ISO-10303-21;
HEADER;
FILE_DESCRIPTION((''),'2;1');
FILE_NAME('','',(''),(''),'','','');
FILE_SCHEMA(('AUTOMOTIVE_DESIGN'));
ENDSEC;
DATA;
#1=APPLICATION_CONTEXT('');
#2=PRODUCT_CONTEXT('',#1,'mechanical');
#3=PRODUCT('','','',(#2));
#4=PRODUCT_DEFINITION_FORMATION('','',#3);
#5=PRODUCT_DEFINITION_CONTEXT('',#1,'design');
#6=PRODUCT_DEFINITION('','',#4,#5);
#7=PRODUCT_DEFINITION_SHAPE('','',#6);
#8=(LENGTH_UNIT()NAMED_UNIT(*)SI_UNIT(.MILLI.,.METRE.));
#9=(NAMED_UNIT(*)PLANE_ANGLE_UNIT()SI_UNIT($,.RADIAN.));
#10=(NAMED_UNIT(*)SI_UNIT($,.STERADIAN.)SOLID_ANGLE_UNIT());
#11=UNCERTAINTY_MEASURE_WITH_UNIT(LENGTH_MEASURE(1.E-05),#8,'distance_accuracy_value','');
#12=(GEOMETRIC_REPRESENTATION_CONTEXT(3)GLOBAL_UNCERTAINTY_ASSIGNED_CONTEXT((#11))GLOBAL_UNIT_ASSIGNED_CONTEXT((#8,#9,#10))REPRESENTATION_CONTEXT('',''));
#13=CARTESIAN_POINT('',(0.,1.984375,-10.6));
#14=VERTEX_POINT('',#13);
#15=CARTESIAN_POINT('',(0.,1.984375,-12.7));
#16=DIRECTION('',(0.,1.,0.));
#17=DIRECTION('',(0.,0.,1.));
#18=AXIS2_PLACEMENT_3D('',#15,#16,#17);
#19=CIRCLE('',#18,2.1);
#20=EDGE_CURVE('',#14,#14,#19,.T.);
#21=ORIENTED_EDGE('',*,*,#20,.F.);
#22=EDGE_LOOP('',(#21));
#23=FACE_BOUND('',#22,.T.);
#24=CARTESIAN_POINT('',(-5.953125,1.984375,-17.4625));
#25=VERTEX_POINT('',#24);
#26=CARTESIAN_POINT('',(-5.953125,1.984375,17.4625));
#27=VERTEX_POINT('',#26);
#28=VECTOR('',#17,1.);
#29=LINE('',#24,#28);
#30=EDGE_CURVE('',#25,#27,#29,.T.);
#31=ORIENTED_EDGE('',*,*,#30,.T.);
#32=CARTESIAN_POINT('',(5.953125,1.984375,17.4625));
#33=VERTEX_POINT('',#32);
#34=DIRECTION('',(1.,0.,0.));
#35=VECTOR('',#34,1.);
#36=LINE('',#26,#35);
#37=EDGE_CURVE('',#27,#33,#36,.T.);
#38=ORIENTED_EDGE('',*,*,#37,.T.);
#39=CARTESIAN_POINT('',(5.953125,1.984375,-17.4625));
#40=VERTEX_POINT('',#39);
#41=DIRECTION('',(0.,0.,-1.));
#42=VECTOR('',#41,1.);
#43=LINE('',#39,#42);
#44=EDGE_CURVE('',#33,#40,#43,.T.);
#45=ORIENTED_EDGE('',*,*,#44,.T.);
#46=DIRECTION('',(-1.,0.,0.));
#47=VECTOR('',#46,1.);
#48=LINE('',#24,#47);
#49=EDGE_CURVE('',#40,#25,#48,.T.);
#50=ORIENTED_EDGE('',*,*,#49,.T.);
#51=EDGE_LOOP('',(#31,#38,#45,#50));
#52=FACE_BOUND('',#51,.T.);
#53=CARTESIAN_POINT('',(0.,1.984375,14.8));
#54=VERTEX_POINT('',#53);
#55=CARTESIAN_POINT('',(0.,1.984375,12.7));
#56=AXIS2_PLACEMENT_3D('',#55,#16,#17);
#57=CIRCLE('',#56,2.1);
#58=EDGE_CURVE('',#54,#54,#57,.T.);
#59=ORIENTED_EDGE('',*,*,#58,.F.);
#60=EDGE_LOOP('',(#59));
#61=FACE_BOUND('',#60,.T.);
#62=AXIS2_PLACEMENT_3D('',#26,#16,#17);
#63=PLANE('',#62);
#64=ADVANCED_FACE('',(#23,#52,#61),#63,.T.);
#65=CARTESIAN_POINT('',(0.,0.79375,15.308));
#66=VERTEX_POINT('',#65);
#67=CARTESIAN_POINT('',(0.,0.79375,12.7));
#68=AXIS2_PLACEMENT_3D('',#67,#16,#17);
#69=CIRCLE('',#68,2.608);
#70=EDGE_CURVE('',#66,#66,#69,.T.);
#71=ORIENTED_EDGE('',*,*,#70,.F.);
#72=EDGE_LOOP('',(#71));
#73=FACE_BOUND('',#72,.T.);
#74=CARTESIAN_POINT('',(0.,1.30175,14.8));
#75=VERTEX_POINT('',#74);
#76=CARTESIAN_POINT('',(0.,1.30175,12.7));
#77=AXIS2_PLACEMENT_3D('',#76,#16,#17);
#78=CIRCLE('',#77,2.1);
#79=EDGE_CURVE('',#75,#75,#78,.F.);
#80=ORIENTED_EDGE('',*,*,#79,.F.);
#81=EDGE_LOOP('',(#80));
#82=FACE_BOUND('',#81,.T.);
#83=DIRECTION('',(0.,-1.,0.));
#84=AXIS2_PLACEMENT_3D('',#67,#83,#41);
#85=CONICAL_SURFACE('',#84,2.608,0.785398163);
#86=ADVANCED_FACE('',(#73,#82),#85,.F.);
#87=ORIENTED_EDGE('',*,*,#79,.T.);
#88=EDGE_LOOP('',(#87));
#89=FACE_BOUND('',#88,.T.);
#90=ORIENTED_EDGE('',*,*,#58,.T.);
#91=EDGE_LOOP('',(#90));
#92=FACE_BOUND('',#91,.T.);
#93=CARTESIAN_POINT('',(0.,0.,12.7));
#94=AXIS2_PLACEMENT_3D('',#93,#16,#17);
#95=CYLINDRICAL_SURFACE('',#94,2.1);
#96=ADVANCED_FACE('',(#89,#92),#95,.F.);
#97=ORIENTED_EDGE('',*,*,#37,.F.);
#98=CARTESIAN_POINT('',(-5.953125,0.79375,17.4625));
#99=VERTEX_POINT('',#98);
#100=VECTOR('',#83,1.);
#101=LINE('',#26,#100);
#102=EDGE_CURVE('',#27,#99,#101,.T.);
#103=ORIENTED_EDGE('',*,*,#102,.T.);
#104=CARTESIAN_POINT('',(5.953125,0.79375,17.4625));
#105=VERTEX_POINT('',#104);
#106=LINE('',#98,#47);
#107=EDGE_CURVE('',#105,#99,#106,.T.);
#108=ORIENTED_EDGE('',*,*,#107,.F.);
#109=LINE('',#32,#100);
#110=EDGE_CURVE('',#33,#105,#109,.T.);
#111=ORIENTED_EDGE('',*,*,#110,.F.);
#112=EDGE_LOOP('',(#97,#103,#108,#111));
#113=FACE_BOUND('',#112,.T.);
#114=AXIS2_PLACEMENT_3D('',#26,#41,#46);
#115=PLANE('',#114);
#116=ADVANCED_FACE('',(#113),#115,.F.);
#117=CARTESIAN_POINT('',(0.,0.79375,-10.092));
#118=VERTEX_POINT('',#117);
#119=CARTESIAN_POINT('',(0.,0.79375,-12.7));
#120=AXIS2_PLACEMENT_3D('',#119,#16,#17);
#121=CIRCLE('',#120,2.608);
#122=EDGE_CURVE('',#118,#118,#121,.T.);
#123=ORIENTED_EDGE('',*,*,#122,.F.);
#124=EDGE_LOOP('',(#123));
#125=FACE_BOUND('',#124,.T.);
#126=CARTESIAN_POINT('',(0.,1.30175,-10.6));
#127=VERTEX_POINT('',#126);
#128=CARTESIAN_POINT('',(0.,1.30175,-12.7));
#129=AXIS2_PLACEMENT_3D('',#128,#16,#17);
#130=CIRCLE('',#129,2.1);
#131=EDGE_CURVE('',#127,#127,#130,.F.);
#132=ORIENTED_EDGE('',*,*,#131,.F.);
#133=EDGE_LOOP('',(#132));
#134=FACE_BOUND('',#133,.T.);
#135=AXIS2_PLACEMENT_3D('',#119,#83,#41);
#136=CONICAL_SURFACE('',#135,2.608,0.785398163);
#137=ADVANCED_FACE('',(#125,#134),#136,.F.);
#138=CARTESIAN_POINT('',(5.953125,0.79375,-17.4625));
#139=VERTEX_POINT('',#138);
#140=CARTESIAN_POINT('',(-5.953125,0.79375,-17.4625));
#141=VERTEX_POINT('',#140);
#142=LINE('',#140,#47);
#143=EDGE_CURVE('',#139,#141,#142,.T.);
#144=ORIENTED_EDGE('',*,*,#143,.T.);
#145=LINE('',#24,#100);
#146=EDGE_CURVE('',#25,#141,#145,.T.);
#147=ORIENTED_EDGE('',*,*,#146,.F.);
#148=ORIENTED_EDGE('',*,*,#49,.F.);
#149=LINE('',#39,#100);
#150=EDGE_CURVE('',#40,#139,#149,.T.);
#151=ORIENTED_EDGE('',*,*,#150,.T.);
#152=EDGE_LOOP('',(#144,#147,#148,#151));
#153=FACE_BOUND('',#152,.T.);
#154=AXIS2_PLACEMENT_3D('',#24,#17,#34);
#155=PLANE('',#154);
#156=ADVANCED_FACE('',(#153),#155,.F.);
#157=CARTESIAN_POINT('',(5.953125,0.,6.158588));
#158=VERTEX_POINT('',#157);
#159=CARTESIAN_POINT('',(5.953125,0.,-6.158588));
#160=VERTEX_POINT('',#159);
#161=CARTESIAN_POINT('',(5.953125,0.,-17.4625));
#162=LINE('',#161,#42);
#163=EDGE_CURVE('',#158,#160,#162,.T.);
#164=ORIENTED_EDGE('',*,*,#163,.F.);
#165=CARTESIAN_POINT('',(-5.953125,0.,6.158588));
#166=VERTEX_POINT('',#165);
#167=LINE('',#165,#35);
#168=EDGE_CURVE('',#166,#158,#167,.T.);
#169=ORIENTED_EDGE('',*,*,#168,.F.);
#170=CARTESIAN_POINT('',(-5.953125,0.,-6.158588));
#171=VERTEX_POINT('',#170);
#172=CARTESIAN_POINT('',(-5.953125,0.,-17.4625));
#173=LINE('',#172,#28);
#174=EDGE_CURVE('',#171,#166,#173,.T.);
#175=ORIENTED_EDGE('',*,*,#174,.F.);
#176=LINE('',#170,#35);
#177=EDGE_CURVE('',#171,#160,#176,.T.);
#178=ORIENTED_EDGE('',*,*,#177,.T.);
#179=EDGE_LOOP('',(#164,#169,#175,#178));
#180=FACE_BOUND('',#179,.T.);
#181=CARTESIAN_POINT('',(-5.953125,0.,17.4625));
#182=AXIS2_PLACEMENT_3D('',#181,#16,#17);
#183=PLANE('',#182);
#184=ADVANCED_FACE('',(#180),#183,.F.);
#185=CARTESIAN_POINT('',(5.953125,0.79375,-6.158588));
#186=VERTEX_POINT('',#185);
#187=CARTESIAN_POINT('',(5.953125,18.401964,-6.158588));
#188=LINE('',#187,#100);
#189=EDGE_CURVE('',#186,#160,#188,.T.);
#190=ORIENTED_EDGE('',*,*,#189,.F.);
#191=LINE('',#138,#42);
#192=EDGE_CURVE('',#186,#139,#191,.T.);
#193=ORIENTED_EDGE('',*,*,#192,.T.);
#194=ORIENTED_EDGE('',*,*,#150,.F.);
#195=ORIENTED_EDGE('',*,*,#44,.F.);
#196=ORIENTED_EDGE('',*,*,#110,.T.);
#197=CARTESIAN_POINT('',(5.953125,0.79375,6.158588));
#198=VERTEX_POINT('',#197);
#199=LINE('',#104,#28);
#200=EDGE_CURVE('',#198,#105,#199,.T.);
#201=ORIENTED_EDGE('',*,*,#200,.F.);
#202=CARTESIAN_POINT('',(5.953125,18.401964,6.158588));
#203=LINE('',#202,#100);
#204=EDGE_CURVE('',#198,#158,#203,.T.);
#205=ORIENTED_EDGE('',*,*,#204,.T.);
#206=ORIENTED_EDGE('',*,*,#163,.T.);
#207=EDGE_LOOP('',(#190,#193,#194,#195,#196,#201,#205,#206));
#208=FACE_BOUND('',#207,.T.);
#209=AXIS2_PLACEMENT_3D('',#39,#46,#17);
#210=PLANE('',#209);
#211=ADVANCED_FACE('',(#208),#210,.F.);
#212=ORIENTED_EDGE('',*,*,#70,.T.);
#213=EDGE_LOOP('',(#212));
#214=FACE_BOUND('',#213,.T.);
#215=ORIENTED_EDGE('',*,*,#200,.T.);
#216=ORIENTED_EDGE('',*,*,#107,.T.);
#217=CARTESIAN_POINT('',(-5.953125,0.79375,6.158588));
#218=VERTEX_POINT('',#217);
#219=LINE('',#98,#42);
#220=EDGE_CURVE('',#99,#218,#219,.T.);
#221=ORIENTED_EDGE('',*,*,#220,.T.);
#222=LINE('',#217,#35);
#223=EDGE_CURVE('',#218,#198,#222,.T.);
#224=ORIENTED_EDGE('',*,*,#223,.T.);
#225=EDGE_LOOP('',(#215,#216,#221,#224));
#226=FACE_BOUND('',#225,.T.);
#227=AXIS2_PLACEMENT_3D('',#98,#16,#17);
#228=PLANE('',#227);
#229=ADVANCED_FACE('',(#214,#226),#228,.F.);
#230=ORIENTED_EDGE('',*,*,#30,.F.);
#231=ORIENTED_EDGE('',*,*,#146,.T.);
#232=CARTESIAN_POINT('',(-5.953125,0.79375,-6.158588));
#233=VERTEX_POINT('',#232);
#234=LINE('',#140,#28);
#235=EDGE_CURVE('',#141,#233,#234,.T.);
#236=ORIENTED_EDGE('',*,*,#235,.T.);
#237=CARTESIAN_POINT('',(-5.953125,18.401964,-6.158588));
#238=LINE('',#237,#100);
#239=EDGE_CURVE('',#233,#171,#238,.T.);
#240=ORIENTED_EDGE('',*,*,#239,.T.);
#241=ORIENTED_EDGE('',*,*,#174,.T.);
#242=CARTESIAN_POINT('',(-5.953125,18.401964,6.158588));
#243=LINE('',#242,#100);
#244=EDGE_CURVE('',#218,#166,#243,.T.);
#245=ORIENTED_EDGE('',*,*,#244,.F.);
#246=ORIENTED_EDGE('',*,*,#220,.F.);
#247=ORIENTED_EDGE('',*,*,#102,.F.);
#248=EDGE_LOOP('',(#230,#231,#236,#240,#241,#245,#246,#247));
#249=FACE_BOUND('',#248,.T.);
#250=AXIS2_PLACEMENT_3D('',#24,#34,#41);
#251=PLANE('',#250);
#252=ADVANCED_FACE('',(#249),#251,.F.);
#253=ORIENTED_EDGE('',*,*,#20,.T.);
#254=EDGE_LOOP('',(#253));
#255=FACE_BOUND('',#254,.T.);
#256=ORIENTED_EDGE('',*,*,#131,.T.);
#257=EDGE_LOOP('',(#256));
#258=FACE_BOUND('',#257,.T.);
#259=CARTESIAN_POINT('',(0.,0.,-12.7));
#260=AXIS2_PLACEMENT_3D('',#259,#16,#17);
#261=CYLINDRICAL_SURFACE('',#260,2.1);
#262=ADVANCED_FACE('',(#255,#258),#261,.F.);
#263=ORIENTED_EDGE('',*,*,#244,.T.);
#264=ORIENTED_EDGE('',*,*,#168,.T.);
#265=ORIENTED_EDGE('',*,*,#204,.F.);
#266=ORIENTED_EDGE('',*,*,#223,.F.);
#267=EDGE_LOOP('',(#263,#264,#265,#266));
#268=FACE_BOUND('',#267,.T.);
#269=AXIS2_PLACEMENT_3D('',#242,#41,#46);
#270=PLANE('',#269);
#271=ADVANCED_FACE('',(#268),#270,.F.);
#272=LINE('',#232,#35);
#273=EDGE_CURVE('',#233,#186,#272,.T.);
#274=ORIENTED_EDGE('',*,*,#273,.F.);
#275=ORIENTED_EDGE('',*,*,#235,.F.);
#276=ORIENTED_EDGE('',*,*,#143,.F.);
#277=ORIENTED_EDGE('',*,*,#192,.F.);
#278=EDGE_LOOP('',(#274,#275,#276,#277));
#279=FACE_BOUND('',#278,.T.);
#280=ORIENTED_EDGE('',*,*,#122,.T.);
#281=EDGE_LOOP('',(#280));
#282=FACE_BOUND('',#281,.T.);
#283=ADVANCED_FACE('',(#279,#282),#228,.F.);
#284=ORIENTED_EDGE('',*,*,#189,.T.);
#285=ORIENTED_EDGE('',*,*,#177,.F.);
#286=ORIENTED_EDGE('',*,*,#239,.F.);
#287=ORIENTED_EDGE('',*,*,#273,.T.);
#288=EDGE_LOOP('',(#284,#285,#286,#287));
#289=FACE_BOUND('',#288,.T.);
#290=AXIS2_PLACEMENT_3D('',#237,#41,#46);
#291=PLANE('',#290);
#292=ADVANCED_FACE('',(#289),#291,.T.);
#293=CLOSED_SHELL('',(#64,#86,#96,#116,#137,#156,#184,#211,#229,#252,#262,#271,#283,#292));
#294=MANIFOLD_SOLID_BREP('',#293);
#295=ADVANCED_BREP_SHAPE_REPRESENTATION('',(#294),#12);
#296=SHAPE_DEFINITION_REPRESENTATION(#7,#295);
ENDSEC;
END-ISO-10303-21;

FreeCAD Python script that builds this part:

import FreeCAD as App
import Part
import Sketcher
from FreeCAD import Vector
Q = App.Units.Quantity


def edges_at(feature, points):
    """Names of the edges that pass closest to the given points."""
    edges = feature.Shape.Edges
    near = lambda p: min(range(len(edges)), key=lambda i: edges[i].distToShape(Part.Vertex(*p))[0])
    return sorted({f"Edge{near(p) + 1}" for p in points})


def add_polygon(sketch, points):
    """Adds a closed chain of lines whose ends are joined by coincident constraints."""
    first, n = sketch.GeometryCount, len(points)
    for a, b in zip(points, points[1:] + points[:1]):
        sketch.addGeometry(Part.LineSegment(App.Vector(*a, 0), App.Vector(*b, 0)), False)
    for i in range(n):
        sketch.addConstraint(Sketcher.Constraint("Coincident", first + i, 2, first + (i + 1) % n, 1))

doc = App.newDocument("Part")
body = doc.addObject("PartDesign::Body", "Body")

# Sketch on XZ plane
sketch1 = body.newObject("Sketcher::SketchObject", "Sketch")
sketch1.AttachmentSupport = (doc.getObject("XZ_Plane"), [""])
sketch1.MapMode = "FlatFace"
add_polygon(sketch1, [(-6, -17), (-6, 17), (6, 17), (6, -17)])  # lines 0-3
sketch1.addConstraint([
    Sketcher.Constraint("Vertical", 0),
    Sketcher.Constraint("Horizontal", 1),
    Sketcher.Constraint("Vertical", 2),
    Sketcher.Constraint("Horizontal", 3),
    Sketcher.Constraint("Symmetric", 0, 2, 2, 2, -1, 1),
    Sketcher.Constraint("DistanceX", 1, 1, 1, 2, Q("0.46875 in")),
    Sketcher.Constraint("DistanceY", 0, 1, 0, 2, Q("1.375 in")),
])
pad1 = body.newObject("PartDesign::Pad", "Pad")
pad1.Profile = sketch1
pad1.Length = Q("0.078125 in")
pad1.Reversed = True

# Sketch on XZ plane
sketch2 = body.newObject("Sketcher::SketchObject", "Sketch001")
sketch2.AttachmentSupport = (doc.getObject("XZ_Plane"), [""])
sketch2.MapMode = "FlatFace"
add_polygon(sketch2, [(-6, 17), (-6, 6), (6, 6), (6, 17)])  # lines 0-3
sketch2.addConstraint([
    Sketcher.Constraint("Vertical", 0),
    Sketcher.Constraint("Horizontal", 1),
    Sketcher.Constraint("Vertical", 2),
    Sketcher.Constraint("Horizontal", 3),
    Sketcher.Constraint("DistanceX", 1, 1, 1, 2, Q("0.46875 in")),
    Sketcher.Constraint("DistanceX", 0, 2, -1, 1, Q("0.234375 in")),
    Sketcher.Constraint("DistanceY", -1, 1, 2, 2, Q("0.6875 in")),
    Sketcher.Constraint("DistanceY", 0, 2, 0, 1, Q("11.303912 mm")),
])
pocket1 = body.newObject("PartDesign::Pocket", "Pocket")
pocket1.Profile = sketch2
pocket1.Length = Q("0.03125 in")
doc.recompute()

mirrored = body.newObject("PartDesign::Mirrored", "Mirrored")
mirrored.Originals = [pocket1]
mirrored.MirrorPlane = (doc.getObject("XY_Plane"), [""])
body.Tip = mirrored

# Sketch on XZ plane
sketch3 = body.newObject("Sketcher::SketchObject", "Sketch002")
sketch3.AttachmentSupport = (doc.getObject("XZ_Plane"), [""])
sketch3.MapMode = "FlatFace"
sketch3.AttachmentOffset = App.Placement(Vector(0, 0, -0.078125 * 25.4), App.Rotation())
sketch3.addGeometry([
    Part.Circle(Vector(0, -12.7, 0), Vector(0, 0, 1), 2.1),
    Part.Circle(Vector(0, 12.7, 0), Vector(0, 0, 1), 2.1),
], False)
sketch3.addConstraint([
    Sketcher.Constraint("Equal", 0, 1),
    Sketcher.Constraint("Symmetric", 0, 3, 1, 3, -1, 1),
    Sketcher.Constraint("PointOnObject", 0, 3, -2),
    Sketcher.Constraint("DistanceY", 0, 3, 1, 3, Q("1 in")),
    Sketcher.Constraint("Diameter", 0, Q("4.2 mm")),
])
pocket2 = body.newObject("PartDesign::Pocket", "Pocket001")
pocket2.Profile = sketch3
pocket2.Length = Q("0.078125 in")
pocket2.Reversed = True
doc.recompute()

chamfer = body.newObject("PartDesign::Chamfer", "Chamfer")
chamfer.Base = (pocket2, edges_at(pocket2, [(0, 0.794, -14.8), (0, 0.794, 10.6)]))
chamfer.Size = Q("0.02 in")

doc.recompute()
